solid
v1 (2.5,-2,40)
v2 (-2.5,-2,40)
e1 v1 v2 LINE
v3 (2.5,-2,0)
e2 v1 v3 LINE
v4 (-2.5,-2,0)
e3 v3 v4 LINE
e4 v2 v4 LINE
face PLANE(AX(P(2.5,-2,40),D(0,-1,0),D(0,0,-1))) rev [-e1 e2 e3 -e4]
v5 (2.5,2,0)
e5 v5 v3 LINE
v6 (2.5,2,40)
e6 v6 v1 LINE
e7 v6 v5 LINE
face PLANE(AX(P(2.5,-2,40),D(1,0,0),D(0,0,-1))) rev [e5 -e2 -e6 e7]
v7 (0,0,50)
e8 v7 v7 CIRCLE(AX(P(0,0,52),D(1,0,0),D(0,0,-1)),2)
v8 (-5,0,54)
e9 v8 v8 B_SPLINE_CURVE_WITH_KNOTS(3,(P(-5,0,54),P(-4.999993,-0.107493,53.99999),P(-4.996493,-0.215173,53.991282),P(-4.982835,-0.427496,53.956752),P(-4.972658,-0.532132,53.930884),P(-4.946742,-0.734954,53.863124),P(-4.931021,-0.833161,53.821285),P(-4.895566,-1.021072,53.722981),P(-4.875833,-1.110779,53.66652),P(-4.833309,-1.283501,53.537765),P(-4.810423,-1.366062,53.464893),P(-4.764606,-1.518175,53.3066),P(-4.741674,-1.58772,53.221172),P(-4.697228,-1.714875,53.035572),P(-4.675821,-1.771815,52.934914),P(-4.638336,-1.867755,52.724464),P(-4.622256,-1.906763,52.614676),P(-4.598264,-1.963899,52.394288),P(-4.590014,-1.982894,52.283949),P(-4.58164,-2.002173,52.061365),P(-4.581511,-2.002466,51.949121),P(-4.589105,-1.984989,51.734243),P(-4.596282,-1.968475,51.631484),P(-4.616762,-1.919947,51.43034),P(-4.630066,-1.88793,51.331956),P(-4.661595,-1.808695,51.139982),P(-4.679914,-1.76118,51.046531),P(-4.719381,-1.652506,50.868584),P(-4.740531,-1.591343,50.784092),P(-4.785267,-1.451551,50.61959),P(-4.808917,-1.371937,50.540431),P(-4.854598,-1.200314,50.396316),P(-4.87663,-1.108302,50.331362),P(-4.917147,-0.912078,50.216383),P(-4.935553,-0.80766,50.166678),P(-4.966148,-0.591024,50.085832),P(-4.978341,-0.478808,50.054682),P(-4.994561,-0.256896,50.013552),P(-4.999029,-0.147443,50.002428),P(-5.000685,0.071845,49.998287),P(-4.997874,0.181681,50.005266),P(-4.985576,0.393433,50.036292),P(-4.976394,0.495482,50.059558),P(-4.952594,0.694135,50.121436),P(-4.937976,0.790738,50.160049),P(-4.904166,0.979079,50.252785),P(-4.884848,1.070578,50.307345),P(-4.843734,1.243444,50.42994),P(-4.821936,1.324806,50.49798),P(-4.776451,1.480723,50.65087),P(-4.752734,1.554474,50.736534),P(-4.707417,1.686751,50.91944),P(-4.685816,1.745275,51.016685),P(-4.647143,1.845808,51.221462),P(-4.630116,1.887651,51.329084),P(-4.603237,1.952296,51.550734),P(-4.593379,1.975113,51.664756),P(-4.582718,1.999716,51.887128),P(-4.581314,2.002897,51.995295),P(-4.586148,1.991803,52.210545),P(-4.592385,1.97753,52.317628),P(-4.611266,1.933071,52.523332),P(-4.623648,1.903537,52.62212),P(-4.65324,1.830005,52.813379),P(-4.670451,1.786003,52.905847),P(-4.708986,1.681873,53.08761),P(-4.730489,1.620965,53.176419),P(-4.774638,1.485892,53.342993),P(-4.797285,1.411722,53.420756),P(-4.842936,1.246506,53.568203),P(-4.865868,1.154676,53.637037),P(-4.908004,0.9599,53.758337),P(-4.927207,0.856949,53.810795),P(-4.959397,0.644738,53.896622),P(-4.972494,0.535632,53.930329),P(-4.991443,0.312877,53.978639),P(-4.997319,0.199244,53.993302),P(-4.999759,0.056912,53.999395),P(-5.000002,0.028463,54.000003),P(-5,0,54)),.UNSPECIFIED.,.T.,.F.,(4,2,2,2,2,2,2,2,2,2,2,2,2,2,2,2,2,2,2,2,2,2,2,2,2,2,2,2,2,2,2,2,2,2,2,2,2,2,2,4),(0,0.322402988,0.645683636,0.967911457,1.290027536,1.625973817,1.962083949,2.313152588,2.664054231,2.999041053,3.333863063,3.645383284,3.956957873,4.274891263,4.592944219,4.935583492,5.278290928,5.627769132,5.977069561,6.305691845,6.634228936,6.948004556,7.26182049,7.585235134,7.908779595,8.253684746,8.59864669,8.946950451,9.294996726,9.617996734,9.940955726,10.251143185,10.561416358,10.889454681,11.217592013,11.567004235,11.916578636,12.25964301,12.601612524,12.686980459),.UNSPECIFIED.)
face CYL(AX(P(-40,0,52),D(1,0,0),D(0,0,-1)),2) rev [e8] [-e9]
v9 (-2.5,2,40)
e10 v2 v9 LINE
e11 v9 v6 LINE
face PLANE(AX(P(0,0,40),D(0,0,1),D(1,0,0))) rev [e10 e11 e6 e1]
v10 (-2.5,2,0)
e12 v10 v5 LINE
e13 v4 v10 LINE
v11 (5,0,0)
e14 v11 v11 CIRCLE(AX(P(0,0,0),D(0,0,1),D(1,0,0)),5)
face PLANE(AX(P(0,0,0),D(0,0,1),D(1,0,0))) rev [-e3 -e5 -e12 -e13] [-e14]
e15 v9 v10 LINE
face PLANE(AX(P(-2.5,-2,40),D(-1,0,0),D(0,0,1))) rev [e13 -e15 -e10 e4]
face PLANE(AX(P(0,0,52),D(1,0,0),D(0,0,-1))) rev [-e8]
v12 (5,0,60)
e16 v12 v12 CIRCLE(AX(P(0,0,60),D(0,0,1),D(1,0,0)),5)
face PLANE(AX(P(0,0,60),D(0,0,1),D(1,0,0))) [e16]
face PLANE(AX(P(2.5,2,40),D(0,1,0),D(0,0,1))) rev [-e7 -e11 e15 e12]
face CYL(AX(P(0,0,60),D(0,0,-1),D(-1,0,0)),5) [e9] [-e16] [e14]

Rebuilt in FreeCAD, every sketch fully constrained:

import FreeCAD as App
import Part
import Sketcher
from FreeCAD import Vector
Q = App.Units.Quantity

doc = App.newDocument("Part")
params = doc.addObject("Spreadsheet::Sheet", "Params")
for row, (alias, value) in enumerate([
    ("sketch1_diameter", "10 mm"),
    ("pad1_length", "60 mm"),
    ("sketch2_width", "5 mm"),
    ("sketch2_height", "4 mm"),
    ("pocket1_length", "40 mm"),
    ("sketch3_diameter", "4 mm"),
    ("pocket2_length", "40 mm"),
], start=1):
    params.set(f"A{row}", alias)
    params.set(f"B{row}", "=" + value)
    params.setAlias(f"B{row}", alias)

body = doc.addObject("PartDesign::Body", "Body")

sketch1 = doc.addObject("Sketcher::SketchObject", "Sketch")
body.addObject(sketch1)
sketch1.AttachmentSupport = (doc.XY_Plane, [""])
sketch1.MapMode = "FlatFace"
sketch1.addGeometry(Part.Circle(Vector(0, 0, 0), Vector(0, 0, 1), 5), False)
sketch1.addConstraint([
    Sketcher.Constraint("Coincident", 0, 3, -1, 1),
    Sketcher.Constraint("Diameter", 0, Q("10 mm")),
])
sketch1.setExpression("Constraints[1]", "Params.sketch1_diameter")
pad1 = doc.addObject("PartDesign::Pad", "Pad")
body.addObject(pad1)
pad1.Profile = sketch1
pad1.setExpression("Length", "Params.pad1_length")

sketch2 = doc.addObject("Sketcher::SketchObject", "Sketch001")
body.addObject(sketch2)
sketch2.AttachmentSupport = (doc.XY_Plane, [""])
sketch2.MapMode = "FlatFace"
sketch2.addGeometry([
    Part.LineSegment(Vector(2.5, 2, 0), Vector(2.5, -2, 0)),
    Part.LineSegment(Vector(2.5, -2, 0), Vector(-2.5, -2, 0)),
    Part.LineSegment(Vector(-2.5, -2, 0), Vector(-2.5, 2, 0)),
    Part.LineSegment(Vector(-2.5, 2, 0), Vector(2.5, 2, 0)),
], False)
sketch2.addConstraint([
    Sketcher.Constraint("Coincident", 0, 2, 1, 1),
    Sketcher.Constraint("Coincident", 1, 2, 2, 1),
    Sketcher.Constraint("Coincident", 2, 2, 3, 1),
    Sketcher.Constraint("Coincident", 3, 2, 0, 1),
    Sketcher.Constraint("Vertical", 0),
    Sketcher.Constraint("Horizontal", 1),
    Sketcher.Constraint("Vertical", 2),
    Sketcher.Constraint("Horizontal", 3),
    Sketcher.Constraint("Symmetric", 0, 2, 2, 2, -1, 1),
    Sketcher.Constraint("DistanceX", 1, 2, 1, 1, Q("5 mm")),
    Sketcher.Constraint("DistanceY", 0, 2, 0, 1, Q("4 mm")),
])
sketch2.setExpression("Constraints[9]", "Params.sketch2_width")
sketch2.setExpression("Constraints[10]", "Params.sketch2_height")
pocket1 = doc.addObject("PartDesign::Pocket", "Pocket")
body.addObject(pocket1)
pocket1.Profile = sketch2
pocket1.setExpression("Length", "Params.pocket1_length")
pocket1.Reversed = True

sketch3 = doc.addObject("Sketcher::SketchObject", "Sketch002")
body.addObject(sketch3)
sketch3.AttachmentSupport = (doc.YZ_Plane, [""])
sketch3.MapMode = "FlatFace"
sketch3.addGeometry(Part.Circle(Vector(0, 52, 0), Vector(0, 0, 1), 2), False)
sketch3.addConstraint([
    Sketcher.Constraint("PointOnObject", 0, 3, -2),
    Sketcher.Constraint("Diameter", 0, Q("4 mm")),
    Sketcher.Constraint("DistanceY", -1, 1, 0, 3, Q("52 mm")),
])
sketch3.setExpression("Constraints[1]", "Params.sketch3_diameter")
pocket2 = doc.addObject("PartDesign::Pocket", "Pocket001")
body.addObject(pocket2)
pocket2.Profile = sketch3
pocket2.setExpression("Length", "Params.pocket2_length")

doc.recompute()
